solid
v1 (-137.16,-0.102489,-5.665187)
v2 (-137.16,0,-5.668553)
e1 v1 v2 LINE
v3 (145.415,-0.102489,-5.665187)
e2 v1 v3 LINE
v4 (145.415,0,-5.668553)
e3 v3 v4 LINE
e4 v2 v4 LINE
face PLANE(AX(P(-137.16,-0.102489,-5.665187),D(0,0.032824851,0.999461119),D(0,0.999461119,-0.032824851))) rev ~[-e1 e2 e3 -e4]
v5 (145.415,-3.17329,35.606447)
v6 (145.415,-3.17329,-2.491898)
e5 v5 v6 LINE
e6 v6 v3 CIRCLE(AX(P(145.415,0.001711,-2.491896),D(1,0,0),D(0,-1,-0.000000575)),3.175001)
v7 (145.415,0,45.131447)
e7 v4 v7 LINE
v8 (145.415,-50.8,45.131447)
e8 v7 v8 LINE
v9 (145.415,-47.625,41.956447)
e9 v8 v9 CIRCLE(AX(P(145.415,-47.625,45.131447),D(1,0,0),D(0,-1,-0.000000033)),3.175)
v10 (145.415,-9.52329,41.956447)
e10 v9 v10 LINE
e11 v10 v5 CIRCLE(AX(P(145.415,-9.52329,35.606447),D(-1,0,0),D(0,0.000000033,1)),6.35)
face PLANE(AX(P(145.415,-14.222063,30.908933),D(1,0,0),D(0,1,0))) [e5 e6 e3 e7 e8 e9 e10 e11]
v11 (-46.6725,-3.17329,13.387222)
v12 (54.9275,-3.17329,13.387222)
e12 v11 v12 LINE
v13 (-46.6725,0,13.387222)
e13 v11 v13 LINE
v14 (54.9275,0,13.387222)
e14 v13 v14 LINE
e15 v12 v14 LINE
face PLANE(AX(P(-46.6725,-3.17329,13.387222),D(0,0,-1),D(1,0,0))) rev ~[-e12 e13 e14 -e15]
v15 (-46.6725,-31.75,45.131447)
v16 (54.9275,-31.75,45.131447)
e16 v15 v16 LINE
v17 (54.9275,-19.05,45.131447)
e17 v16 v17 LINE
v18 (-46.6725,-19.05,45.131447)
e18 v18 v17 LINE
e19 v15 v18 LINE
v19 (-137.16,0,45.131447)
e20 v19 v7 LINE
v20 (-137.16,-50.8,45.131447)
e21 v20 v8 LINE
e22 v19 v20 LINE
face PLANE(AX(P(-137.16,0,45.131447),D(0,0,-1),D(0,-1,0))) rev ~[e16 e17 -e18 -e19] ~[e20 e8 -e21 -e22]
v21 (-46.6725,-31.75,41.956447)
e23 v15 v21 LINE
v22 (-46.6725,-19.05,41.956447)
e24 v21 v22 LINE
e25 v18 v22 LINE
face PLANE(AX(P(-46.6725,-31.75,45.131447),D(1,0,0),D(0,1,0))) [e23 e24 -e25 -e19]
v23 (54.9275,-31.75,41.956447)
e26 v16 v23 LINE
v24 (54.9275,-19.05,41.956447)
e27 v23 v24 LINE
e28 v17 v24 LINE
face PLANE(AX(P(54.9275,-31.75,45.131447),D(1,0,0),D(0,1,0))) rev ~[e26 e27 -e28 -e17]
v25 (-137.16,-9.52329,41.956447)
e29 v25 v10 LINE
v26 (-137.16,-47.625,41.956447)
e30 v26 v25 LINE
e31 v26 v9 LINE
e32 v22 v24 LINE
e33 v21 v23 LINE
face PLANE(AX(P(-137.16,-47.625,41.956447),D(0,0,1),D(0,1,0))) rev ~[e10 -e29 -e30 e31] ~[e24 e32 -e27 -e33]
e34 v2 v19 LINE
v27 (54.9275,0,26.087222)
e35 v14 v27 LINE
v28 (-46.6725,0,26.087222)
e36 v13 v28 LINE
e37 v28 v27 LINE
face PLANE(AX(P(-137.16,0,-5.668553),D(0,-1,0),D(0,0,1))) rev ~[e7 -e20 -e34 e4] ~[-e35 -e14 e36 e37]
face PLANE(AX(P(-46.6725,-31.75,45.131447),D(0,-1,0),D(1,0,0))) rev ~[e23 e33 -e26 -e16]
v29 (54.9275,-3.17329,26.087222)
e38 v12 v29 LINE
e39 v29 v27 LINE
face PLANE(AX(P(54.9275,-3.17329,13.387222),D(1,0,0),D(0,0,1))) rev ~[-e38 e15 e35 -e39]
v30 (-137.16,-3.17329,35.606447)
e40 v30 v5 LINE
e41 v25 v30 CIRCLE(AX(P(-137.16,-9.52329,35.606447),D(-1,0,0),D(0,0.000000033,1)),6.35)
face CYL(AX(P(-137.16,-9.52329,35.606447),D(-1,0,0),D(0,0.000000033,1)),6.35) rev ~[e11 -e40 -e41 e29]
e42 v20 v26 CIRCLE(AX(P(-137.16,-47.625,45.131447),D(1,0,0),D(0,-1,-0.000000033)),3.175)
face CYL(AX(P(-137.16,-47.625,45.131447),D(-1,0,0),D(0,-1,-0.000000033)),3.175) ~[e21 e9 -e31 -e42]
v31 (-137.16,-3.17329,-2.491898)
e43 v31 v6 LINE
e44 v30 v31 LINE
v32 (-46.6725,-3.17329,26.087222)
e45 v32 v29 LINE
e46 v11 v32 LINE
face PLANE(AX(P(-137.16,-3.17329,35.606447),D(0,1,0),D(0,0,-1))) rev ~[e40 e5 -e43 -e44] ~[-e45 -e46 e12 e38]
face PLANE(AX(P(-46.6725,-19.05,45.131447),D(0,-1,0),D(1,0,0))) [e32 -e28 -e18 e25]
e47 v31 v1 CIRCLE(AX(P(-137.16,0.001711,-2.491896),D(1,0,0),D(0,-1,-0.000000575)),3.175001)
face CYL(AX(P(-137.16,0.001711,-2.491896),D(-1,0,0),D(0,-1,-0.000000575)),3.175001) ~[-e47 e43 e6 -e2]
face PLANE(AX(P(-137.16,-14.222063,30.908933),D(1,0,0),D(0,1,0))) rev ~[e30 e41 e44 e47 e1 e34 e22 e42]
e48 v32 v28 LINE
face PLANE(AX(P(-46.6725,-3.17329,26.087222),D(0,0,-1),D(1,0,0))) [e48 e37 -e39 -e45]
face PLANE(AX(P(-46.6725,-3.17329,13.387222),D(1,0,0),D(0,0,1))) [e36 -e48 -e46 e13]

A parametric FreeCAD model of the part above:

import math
import FreeCAD as App
import Part
import Sketcher

V = App.Vector
Q = App.Units.Quantity


def add_polygon(sketch, points):
    """Adds a closed chain of lines whose ends are joined by coincident constraints."""
    first, n = sketch.GeometryCount, len(points)
    for a, b in zip(points, points[1:] + points[:1]):
        sketch.addGeometry(Part.LineSegment(App.Vector(*a, 0), App.Vector(*b, 0)), False)
    for i in range(n):
        sketch.addConstraint(Sketcher.Constraint("Coincident", first + i, 2, first + (i + 1) % n, 1))

doc = App.newDocument("Part")
body = doc.addObject("PartDesign::Body", "Body")

sketch1 = body.newObject("Sketcher::SketchObject", "Sketch")
sketch1.AttachmentSupport = (doc.getObject("YZ_Plane"), [""])
sketch1.MapMode = "FlatFace"
sketch1.addGeometry([
    Part.LineSegment(V(-0.102489, -7.189187, 0), V(0, -7.192553, 0)),
    Part.LineSegment(V(0, -7.192553, 0), V(0, 43.607447, 0)),
    Part.LineSegment(V(0, 43.607447, 0), V(-50.8, 43.607447, 0)),
    Part.ArcOfCircle(Part.Circle(V(-47.625, 43.607447, 0), V(0, 0, 1), 3.175), math.radians(-179.999998), math.radians(-90.000002)),
    Part.LineSegment(V(-47.625, 40.432447, 0), V(-9.52329, 40.432447, 0)),
    Part.ArcOfCircle(Part.Circle(V(-9.52329, 34.082447, 0), V(0, 0, 1), 6.35), math.radians(0.000002), math.radians(89.999998)),
    Part.LineSegment(V(-3.17329, 34.082447, 0), V(-3.17329, -4.015898, 0)),
    Part.ArcOfCircle(Part.Circle(V(0.001711, -4.015896, 0), V(0, 0, 1), 3.175001), math.radians(-179.999967), math.radians(-91.880724)),
], False)
sketch1.addConstraint([
    Sketcher.Constraint("Coincident", 0, 2, 1, 1),
    Sketcher.Constraint("Coincident", 1, 2, 2, 1),
    Sketcher.Constraint("Coincident", 2, 2, 3, 1),
    Sketcher.Constraint("Tangent", 3, 2, 4, 1),
    Sketcher.Constraint("Tangent", 4, 2, 5, 2),
    Sketcher.Constraint("Tangent", 5, 1, 6, 1),
    Sketcher.Constraint("Tangent", 6, 2, 7, 1),
    Sketcher.Constraint("Coincident", 7, 2, 0, 1),
    Sketcher.Constraint("Vertical", 1),
    Sketcher.Constraint("Horizontal", 2),
    Sketcher.Constraint("Horizontal", 4),
    Sketcher.Constraint("Vertical", 6),
    Sketcher.Constraint("Equal", 3, 7),
    Sketcher.Constraint("PointOnObject", 0, 2, -2),
    Sketcher.Constraint("Horizontal", 3, 3, 1, 2),
    Sketcher.Constraint("Equal", 2, 1),
    Sketcher.Constraint("DistanceX", 2, 2, 2, 1, Q("2 in")),
    Sketcher.Constraint("Radius", 5, Q("0.25 in")),
    Sketcher.Constraint("Radius", 3, Q("0.125 in")),
    Sketcher.Constraint("DistanceX", 4, 1, 4, 2, Q("38.10171 mm")),
    Sketcher.Constraint("DistanceX", 7, 2, 7, 3, Q("0.1042 mm")),
    Sketcher.Constraint("DistanceY", 6, 2, 6, 1, Q("38.098345 mm")),
    Sketcher.Constraint("DistanceY", -1, 1, 3, 3, Q("43.607447 mm")),
])
pad1 = body.newObject("PartDesign::Pad", "Pad")
pad1.Profile = sketch1
pad1.Length = Q("11.125 in")
body2 = doc.addObject("PartDesign::Body", "Body001")
doc.recompute()

body.Placement = App.Placement(V(-137.16, 0, 1.524), App.Rotation(V(0, 0, 1), 0))
boolean = body2.newObject("PartDesign::Boolean", "Boolean")
boolean.Type = "Fuse"
boolean.addObjects([body])

sketch2 = body2.newObject("Sketcher::SketchObject", "Sketch001")
sketch2.AttachmentSupport = (doc.getObject("XZ_Plane001"), [""])
sketch2.MapMode = "FlatFace"
sketch2.AttachmentOffset = App.Placement(V(0, 0, 3.17329), App.Rotation())
add_polygon(sketch2, [(-46.6725, 26.087222), (-46.6725, 13.387222), (54.9275, 13.387222), (54.9275, 26.087222)])
sketch2.addConstraint([
    Sketcher.Constraint("Vertical", 0),
    Sketcher.Constraint("Horizontal", 1),
    Sketcher.Constraint("Vertical", 2),
    Sketcher.Constraint("Horizontal", 3),
    Sketcher.Constraint("DistanceX", 1, 1, 1, 2, Q("4 in")),
    Sketcher.Constraint("DistanceY", 0, 2, 0, 1, Q("0.5 in")),
    Sketcher.Constraint("DistanceX", 0, 2, -1, 1, Q("1.8375 in")),
    Sketcher.Constraint("DistanceY", -1, 1, 0, 2, Q("13.387222 mm")),
])
pocket1 = body2.newObject("PartDesign::Pocket", "Pocket")
pocket1.Profile = sketch2
pocket1.Length = Q("1 in")
pocket2 = body2.newObject("PartDesign::Pocket", "Pocket001")
pocket2.Profile = sketch2
pocket2.Length = Q("1 in")

sketch3 = body2.newObject("Sketcher::SketchObject", "Sketch002")
sketch3.AttachmentSupport = (doc.getObject("XY_Plane001"), [""])
sketch3.MapMode = "FlatFace"
sketch3.AttachmentOffset = App.Placement(V(0, 0, 45.131447), App.Rotation())
add_polygon(sketch3, [(-46.6725, -19.05), (-46.6725, -31.75), (54.9275, -31.75), (54.9275, -19.05)])
sketch3.addConstraint([
    Sketcher.Constraint("Vertical", 0),
    Sketcher.Constraint("Horizontal", 1),
    Sketcher.Constraint("Vertical", 2),
    Sketcher.Constraint("Horizontal", 3),
    Sketcher.Constraint("DistanceX", 1, 1, 1, 2, Q("4 in")),
    Sketcher.Constraint("DistanceY", 0, 2, 0, 1, Q("0.5 in")),
    Sketcher.Constraint("DistanceY", 0, 2, -1, 1, Q("1.25 in")),
    Sketcher.Constraint("DistanceX", 0, 2, -1, 1, Q("1.8375 in")),
])
pocket3 = body2.newObject("PartDesign::Pocket", "Pocket002")
pocket3.Profile = sketch3
pocket3.Length = Q("1 in")
pocket4 = body2.newObject("PartDesign::Pocket", "Pocket003")
pocket4.Profile = sketch3
pocket4.Length = Q("1 in")

doc.recompute()
